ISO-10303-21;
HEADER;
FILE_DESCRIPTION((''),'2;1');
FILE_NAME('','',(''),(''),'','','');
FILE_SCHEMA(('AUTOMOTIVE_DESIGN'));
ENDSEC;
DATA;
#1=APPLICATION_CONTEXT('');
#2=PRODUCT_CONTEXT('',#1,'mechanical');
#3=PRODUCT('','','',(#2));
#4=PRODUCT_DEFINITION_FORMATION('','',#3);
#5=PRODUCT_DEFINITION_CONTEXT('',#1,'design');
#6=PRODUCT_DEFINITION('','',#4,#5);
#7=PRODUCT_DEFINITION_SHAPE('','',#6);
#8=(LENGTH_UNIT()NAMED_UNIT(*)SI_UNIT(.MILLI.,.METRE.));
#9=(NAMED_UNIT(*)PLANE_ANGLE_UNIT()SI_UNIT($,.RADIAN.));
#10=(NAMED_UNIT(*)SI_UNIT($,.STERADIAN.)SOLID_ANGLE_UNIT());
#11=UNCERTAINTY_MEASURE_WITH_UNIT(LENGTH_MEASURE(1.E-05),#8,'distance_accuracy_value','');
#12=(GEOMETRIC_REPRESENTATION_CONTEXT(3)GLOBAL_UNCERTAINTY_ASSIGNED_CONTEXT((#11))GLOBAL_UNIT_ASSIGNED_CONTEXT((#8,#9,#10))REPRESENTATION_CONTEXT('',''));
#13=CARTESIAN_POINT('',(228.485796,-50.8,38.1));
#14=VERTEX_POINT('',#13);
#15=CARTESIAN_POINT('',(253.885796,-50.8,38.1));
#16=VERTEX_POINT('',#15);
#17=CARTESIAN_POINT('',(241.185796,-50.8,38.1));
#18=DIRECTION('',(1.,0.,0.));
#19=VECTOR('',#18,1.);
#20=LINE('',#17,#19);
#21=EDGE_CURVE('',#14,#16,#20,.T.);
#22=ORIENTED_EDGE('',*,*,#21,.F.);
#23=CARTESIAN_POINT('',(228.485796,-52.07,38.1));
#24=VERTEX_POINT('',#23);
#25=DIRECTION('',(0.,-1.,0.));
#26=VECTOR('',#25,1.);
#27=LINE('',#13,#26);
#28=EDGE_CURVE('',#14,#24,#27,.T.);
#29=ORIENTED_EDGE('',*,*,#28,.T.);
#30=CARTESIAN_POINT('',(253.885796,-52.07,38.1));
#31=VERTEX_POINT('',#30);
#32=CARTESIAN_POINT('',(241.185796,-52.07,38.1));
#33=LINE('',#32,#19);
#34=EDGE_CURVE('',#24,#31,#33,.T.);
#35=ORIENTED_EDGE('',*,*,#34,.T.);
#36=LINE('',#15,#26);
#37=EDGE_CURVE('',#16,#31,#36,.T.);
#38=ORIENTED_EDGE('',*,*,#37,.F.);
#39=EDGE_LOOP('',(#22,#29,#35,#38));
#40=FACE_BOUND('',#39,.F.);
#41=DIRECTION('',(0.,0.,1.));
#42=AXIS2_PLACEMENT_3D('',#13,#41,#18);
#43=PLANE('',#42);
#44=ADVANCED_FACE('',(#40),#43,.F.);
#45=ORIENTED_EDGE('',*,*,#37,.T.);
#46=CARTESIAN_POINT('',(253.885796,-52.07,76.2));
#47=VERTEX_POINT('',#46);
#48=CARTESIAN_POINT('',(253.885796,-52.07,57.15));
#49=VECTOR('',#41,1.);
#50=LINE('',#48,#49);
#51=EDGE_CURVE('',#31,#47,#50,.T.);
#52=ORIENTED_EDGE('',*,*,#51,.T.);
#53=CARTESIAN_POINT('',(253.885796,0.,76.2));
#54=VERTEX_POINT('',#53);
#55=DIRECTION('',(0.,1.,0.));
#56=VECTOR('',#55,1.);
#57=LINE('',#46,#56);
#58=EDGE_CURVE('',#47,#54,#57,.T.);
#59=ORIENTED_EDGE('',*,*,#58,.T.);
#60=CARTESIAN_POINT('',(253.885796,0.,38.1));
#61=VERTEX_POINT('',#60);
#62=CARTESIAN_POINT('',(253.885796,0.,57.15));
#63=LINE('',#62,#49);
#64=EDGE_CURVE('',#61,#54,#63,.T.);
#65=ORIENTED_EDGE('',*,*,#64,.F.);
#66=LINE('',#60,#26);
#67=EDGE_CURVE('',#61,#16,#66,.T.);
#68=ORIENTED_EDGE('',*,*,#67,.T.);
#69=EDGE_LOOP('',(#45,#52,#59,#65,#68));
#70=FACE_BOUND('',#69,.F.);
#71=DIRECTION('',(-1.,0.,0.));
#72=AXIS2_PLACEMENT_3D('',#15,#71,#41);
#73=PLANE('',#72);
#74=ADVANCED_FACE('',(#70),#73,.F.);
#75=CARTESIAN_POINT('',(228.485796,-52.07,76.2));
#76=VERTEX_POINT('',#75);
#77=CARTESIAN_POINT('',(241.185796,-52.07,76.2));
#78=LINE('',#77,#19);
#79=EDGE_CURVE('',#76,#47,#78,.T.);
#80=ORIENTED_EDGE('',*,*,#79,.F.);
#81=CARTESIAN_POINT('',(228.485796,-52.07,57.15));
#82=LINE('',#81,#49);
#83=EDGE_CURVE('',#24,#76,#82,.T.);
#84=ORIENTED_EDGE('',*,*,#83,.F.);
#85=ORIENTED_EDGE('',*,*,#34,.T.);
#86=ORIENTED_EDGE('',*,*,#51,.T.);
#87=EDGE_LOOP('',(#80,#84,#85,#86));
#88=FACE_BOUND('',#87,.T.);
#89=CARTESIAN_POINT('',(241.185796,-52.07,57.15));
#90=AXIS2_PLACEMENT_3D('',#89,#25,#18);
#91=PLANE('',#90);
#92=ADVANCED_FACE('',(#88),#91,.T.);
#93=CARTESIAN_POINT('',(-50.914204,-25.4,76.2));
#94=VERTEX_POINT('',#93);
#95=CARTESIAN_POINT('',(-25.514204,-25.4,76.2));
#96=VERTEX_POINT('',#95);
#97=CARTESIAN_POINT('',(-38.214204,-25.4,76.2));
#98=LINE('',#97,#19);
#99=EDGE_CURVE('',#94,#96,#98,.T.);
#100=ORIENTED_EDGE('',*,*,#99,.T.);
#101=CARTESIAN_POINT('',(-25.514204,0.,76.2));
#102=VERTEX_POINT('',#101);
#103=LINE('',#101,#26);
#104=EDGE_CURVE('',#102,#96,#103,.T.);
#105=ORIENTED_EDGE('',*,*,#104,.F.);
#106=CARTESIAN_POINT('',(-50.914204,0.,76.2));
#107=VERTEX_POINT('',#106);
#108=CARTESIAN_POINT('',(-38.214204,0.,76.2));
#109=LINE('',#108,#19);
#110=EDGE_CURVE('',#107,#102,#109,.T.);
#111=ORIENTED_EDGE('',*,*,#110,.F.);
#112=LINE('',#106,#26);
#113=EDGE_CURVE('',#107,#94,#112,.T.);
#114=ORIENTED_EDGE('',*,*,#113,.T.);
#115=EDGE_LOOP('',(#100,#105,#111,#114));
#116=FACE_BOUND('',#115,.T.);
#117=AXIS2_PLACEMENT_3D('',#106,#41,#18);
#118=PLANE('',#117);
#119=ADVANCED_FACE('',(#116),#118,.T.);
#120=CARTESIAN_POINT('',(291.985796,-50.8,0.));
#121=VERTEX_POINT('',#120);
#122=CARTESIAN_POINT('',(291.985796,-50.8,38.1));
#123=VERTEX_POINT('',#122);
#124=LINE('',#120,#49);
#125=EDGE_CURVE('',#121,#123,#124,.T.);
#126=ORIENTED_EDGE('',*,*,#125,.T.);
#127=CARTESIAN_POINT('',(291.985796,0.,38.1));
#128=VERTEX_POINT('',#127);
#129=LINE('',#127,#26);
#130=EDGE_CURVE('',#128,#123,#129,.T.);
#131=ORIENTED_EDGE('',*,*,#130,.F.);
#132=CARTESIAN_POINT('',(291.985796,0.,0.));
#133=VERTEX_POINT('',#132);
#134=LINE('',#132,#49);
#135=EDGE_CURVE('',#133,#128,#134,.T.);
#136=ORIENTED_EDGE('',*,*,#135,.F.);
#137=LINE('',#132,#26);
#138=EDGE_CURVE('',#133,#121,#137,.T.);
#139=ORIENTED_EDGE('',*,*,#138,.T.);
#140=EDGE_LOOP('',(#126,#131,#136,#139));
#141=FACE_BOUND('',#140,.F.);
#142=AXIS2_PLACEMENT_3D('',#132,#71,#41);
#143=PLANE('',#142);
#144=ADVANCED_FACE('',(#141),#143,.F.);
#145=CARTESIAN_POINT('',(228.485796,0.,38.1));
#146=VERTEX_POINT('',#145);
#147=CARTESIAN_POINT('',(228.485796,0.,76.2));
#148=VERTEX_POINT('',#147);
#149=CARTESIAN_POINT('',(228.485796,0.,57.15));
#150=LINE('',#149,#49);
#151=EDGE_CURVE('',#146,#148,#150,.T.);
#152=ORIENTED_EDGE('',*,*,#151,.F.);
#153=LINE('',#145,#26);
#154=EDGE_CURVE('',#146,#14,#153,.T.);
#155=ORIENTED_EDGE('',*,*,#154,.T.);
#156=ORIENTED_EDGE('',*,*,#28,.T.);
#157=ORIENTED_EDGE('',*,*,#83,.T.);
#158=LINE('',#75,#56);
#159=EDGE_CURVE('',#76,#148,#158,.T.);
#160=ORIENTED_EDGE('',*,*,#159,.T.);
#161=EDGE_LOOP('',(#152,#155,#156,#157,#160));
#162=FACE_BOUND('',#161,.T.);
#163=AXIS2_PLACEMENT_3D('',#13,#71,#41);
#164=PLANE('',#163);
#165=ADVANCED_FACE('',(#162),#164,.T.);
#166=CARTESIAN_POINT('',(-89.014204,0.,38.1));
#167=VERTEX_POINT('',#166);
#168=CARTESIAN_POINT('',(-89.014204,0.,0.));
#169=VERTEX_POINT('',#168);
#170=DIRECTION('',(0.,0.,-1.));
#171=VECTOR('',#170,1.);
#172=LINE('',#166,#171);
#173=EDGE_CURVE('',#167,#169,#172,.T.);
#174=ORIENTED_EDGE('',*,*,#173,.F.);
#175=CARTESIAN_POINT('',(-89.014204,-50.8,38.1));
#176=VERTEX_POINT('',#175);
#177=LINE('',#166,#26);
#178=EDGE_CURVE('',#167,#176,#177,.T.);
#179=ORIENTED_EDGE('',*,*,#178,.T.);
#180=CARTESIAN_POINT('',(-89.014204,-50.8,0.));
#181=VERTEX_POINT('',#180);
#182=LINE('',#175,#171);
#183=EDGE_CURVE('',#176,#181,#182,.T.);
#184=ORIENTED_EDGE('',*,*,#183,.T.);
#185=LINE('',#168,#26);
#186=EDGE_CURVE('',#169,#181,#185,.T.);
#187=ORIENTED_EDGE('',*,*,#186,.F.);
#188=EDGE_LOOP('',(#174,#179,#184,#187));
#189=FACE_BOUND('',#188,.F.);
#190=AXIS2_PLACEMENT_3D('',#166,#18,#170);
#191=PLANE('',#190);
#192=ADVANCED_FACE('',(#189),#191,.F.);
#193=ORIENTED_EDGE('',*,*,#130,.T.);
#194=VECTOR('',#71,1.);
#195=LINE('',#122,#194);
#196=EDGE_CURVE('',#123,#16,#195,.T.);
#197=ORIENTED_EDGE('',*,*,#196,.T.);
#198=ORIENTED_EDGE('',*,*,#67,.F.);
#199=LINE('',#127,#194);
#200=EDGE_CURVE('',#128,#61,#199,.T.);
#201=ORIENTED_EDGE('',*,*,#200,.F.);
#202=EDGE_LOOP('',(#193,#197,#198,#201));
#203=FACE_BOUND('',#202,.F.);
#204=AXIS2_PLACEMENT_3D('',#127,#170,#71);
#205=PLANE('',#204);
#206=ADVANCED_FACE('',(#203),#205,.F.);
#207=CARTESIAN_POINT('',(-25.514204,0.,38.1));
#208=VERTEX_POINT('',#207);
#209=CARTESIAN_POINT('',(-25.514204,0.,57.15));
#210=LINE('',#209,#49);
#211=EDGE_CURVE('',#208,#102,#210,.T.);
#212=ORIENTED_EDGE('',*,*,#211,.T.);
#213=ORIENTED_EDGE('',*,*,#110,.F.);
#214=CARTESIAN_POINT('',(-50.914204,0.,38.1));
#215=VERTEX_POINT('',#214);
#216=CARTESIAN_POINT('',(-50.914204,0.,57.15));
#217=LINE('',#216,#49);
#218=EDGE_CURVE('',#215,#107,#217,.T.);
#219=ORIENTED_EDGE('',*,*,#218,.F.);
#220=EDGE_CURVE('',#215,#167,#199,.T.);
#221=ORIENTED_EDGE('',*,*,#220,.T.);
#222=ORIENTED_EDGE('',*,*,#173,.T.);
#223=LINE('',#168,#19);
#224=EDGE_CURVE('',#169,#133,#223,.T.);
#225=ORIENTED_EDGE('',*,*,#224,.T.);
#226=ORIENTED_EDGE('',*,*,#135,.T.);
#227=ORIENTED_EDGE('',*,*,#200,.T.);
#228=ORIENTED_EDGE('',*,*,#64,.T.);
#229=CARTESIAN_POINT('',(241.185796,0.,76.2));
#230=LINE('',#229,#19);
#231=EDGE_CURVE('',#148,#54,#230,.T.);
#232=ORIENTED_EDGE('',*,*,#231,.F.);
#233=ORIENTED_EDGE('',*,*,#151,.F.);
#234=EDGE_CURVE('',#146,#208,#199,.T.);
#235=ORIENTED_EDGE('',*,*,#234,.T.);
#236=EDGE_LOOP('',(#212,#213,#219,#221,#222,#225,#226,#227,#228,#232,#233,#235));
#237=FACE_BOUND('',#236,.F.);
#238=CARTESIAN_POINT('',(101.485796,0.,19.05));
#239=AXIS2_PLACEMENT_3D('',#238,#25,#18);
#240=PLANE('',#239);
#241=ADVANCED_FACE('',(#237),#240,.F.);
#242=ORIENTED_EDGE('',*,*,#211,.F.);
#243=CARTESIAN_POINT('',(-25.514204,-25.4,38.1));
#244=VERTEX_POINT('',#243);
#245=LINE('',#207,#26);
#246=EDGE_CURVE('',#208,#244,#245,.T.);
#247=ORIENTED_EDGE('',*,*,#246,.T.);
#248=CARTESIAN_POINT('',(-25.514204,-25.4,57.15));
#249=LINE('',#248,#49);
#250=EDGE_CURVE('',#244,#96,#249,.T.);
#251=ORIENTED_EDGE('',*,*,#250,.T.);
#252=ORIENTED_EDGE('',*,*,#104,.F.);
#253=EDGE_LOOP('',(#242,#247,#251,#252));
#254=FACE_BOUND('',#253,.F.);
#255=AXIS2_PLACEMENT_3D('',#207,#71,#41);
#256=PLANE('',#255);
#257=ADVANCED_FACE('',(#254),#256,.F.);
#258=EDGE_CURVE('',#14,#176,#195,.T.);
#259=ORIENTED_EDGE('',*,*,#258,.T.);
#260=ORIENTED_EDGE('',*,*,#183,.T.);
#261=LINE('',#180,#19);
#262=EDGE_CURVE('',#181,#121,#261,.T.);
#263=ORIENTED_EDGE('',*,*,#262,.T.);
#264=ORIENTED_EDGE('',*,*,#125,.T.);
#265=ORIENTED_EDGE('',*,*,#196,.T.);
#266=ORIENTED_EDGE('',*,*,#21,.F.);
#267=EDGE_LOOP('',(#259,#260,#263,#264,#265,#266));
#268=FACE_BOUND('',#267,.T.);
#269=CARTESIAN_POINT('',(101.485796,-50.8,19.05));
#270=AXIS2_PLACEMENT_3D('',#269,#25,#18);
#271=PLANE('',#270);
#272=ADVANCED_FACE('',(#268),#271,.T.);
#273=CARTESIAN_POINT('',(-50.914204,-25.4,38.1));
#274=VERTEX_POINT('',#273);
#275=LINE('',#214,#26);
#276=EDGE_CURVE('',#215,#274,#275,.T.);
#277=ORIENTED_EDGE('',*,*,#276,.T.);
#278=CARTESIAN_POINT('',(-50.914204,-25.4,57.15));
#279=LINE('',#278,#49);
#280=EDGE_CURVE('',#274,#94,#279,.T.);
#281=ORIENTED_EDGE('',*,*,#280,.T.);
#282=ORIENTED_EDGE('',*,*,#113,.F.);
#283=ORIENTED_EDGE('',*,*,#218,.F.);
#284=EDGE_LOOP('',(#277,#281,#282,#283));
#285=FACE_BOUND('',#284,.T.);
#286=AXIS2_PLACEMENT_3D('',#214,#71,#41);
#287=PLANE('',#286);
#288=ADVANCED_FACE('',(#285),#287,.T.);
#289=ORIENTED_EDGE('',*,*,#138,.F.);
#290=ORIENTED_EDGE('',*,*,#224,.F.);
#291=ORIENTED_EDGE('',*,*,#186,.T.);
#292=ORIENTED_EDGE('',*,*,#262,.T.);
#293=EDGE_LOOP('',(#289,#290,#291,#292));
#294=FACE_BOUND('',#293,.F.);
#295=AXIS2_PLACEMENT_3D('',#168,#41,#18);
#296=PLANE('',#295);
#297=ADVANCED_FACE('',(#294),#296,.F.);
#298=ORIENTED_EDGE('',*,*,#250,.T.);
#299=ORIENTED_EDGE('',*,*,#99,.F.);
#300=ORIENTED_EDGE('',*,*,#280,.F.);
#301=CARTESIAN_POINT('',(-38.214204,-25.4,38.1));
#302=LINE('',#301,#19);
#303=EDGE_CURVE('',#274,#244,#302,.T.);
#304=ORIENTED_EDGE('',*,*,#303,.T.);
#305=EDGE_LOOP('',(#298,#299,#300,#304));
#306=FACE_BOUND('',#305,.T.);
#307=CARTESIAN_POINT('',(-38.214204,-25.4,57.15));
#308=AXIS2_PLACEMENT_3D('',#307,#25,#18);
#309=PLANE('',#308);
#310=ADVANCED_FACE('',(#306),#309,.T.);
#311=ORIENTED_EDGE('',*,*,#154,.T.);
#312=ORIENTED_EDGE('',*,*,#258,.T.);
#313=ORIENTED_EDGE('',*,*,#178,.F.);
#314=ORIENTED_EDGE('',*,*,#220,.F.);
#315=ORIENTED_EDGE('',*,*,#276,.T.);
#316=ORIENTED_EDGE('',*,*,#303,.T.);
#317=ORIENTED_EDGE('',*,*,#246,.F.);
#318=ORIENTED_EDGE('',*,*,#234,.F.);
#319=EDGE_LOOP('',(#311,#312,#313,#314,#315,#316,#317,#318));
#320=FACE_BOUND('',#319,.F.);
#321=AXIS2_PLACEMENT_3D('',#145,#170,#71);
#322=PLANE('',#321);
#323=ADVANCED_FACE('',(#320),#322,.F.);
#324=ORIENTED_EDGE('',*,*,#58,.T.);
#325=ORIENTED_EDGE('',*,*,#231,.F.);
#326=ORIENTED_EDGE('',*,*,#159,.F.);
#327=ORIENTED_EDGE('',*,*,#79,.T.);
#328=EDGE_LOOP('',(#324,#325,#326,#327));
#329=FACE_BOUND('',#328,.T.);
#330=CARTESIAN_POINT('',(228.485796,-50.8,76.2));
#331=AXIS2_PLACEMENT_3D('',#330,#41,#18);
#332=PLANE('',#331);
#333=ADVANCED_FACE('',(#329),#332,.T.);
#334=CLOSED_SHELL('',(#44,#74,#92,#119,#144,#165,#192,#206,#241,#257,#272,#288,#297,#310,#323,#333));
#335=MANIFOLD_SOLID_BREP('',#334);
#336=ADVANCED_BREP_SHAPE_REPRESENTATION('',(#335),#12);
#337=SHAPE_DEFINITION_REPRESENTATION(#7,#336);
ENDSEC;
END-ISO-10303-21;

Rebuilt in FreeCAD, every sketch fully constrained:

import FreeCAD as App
import Part
import Sketcher
from FreeCAD import Vector
Q = App.Units.Quantity


def add_polygon(sketch, points):
    """Adds a closed chain of lines whose ends are joined by coincident constraints."""
    first, n = sketch.GeometryCount, len(points)
    for a, b in zip(points, points[1:] + points[:1]):
        sketch.addGeometry(Part.LineSegment(App.Vector(*a, 0), App.Vector(*b, 0)), False)
    for i in range(n):
        sketch.addConstraint(Sketcher.Constraint("Coincident", first + i, 2, first + (i + 1) % n, 1))

doc = App.newDocument("Part")
body = doc.addObject("PartDesign::Body", "Body")

# Sketch on XZ plane
sketch1 = body.newObject("Sketcher::SketchObject", "Sketch")
sketch1.AttachmentSupport = (doc.getObject("XZ_Plane"), [""])
sketch1.MapMode = "FlatFace"
add_polygon(sketch1, [(-89, 38), (-89, 0), (292, 0), (292, 38), (254, 38), (254, 76), (228, 76), (228, 38)])  # lines 0-7
sketch1.addConstraint([
    Sketcher.Constraint("Vertical", 0),
    Sketcher.Constraint("Horizontal", 1),
    Sketcher.Constraint("Vertical", 2),
    Sketcher.Constraint("Horizontal", 3),
    Sketcher.Constraint("Vertical", 4),
    Sketcher.Constraint("Horizontal", 5),
    Sketcher.Constraint("Vertical", 6),
    Sketcher.Constraint("Horizontal", 7),
    Sketcher.Constraint("PointOnObject", 0, 2, -1),
    Sketcher.Constraint("Horizontal", 3, 2, 6, 2),
    Sketcher.Constraint("Equal", 3, 0),
    Sketcher.Constraint("Equal", 2, 4),
    Sketcher.Constraint("DistanceX", 1, 1, 1, 2, Q("15 in")),
    Sketcher.Constraint("DistanceX", 5, 2, 5, 1, Q("1 in")),
    Sketcher.Constraint("DistanceX", 3, 2, 3, 1, Q("1.5 in")),
    Sketcher.Constraint("DistanceX", 0, 2, -1, 1, Q("89.014204 mm")),
])
pad1 = body.newObject("PartDesign::Pad", "Pad")
pad1.Profile = sketch1
pad1.Length = Q("2 in")

# Sketch on XZ plane
sketch2 = body.newObject("Sketcher::SketchObject", "Sketch001")
sketch2.AttachmentSupport = (doc.getObject("XZ_Plane"), [""])
sketch2.MapMode = "FlatFace"
add_polygon(sketch2, [(-51, 76), (-51, 38), (-26, 38), (-26, 76)])  # lines 0-3
sketch2.addConstraint([
    Sketcher.Constraint("Vertical", 0),
    Sketcher.Constraint("Horizontal", 1),
    Sketcher.Constraint("Vertical", 2),
    Sketcher.Constraint("Horizontal", 3),
    Sketcher.Constraint("DistanceX", 1, 1, 1, 2, Q("1 in")),
    Sketcher.Constraint("DistanceY", 0, 2, 0, 1, Q("1.5 in")),
    Sketcher.Constraint("DistanceY", -1, 1, 2, 2, Q("3 in")),
    Sketcher.Constraint("DistanceX", 0, 2, -1, 1, Q("50.914204 mm")),
])
pad2 = body.newObject("PartDesign::Pad", "Pad001")
pad2.Profile = sketch2
pad2.Length = Q("1 in")

# Sketch on XZ plane
sketch3 = body.newObject("Sketcher::SketchObject", "Sketch002")
sketch3.AttachmentSupport = (doc.getObject("XZ_Plane"), [""])
sketch3.MapMode = "FlatFace"
sketch3.AttachmentOffset = App.Placement(Vector(0, 0, 2 * 25.4), App.Rotation())
add_polygon(sketch3, [(228, 76), (228, 38), (254, 38), (254, 76)])  # lines 0-3
sketch3.addConstraint([
    Sketcher.Constraint("Vertical", 0),
    Sketcher.Constraint("Horizontal", 1),
    Sketcher.Constraint("Vertical", 2),
    Sketcher.Constraint("Horizontal", 3),
    Sketcher.Constraint("DistanceX", 1, 1, 1, 2, Q("1 in")),
    Sketcher.Constraint("DistanceY", 0, 2, 0, 1, Q("1.5 in")),
    Sketcher.Constraint("DistanceY", -1, 1, 2, 2, Q("3 in")),
    Sketcher.Constraint("DistanceX", -1, 1, 0, 2, Q("228.485796 mm")),
])
pad3 = body.newObject("PartDesign::Pad", "Pad002")
pad3.Profile = sketch3
pad3.Length = Q("0.05 in")

doc.recompute()
